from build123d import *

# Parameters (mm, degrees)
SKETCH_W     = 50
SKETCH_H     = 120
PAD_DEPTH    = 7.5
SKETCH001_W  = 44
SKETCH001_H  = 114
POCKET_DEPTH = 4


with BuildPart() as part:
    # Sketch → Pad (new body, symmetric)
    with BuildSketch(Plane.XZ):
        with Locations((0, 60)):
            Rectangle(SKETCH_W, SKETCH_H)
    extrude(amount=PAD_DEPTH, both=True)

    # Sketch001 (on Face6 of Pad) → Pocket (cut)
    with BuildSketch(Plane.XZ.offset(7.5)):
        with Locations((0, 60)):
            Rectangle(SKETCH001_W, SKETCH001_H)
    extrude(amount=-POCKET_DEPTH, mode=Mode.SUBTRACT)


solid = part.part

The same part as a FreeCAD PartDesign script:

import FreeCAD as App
import Part
import Sketcher

V = App.Vector

doc = App.newDocument("Part")
params = doc.addObject("Spreadsheet::Sheet", "Params")
for row, (alias, value) in enumerate([
    ("sketch1_width", "50 mm"),
    ("sketch1_height", "120 mm"),
    ("pad1_length", "15 mm"),
    ("sketch2_width", "44 mm"),
    ("sketch2_height", "114 mm"),
    ("pocket1_length", "4 mm"),
], start=1):
    params.set(f"A{row}", alias)
    params.set(f"B{row}", "=" + value)
    params.setAlias(f"B{row}", alias)

body = doc.addObject("PartDesign::Body", "Body")

# Sketch on XZ plane
sketch1 = doc.addObject("Sketcher::SketchObject", "Sketch")
body.addObject(sketch1)
sketch1.AttachmentSupport = (doc.XZ_Plane, [""])
sketch1.MapMode = "FlatFace"
sketch1.addGeometry(Part.LineSegment(V(-25, 120, 0), V(-25, 0, 0)), False)
sketch1.addGeometry(Part.LineSegment(V(-25, 0, 0), V(25, 0, 0)), False)
sketch1.addGeometry(Part.LineSegment(V(25, 0, 0), V(25, 120, 0)), False)
sketch1.addGeometry(Part.LineSegment(V(25, 120, 0), V(-25, 120, 0)), False)
sketch1.addConstraint(Sketcher.Constraint("Coincident", 0, 2, 1, 1))
sketch1.addConstraint(Sketcher.Constraint("Coincident", 1, 2, 2, 1))
sketch1.addConstraint(Sketcher.Constraint("Coincident", 2, 2, 3, 1))
sketch1.addConstraint(Sketcher.Constraint("Coincident", 3, 2, 0, 1))
sketch1.addConstraint(Sketcher.Constraint("Vertical", 0))
sketch1.addConstraint(Sketcher.Constraint("Horizontal", 1))
sketch1.addConstraint(Sketcher.Constraint("Vertical", 2))
sketch1.addConstraint(Sketcher.Constraint("Horizontal", 3))
sketch1.addConstraint(Sketcher.Constraint("Symmetric", 0, 2, 1, 2, -1, 1))
sketch1.addConstraint(Sketcher.Constraint("DistanceX", 1, 1, 1, 2, 50.0))
sketch1.addConstraint(Sketcher.Constraint("DistanceY", 0, 2, 0, 1, 120.0))
sketch1.setExpression("Constraints[9]", "Params.sketch1_width")
sketch1.setExpression("Constraints[10]", "Params.sketch1_height")
pad1 = doc.addObject("PartDesign::Pad", "Pad")
body.addObject(pad1)
pad1.Profile = sketch1
pad1.setExpression("Length", "Params.pad1_length")
pad1.Midplane = True

# Sketch on XZ plane
sketch2 = doc.addObject("Sketcher::SketchObject", "Sketch001")
body.addObject(sketch2)
sketch2.AttachmentSupport = (doc.XZ_Plane, [""])
sketch2.MapMode = "FlatFace"
sketch2.AttachmentOffset = App.Placement(V(0, 0, 7.5), App.Rotation())
sketch2.addGeometry(Part.LineSegment(V(-22, 117, 0), V(-22, 3, 0)), False)
sketch2.addGeometry(Part.LineSegment(V(-22, 3, 0), V(22, 3, 0)), False)
sketch2.addGeometry(Part.LineSegment(V(22, 3, 0), V(22, 117, 0)), False)
sketch2.addGeometry(Part.LineSegment(V(22, 117, 0), V(-22, 117, 0)), False)
sketch2.addConstraint(Sketcher.Constraint("Coincident", 0, 2, 1, 1))
sketch2.addConstraint(Sketcher.Constraint("Coincident", 1, 2, 2, 1))
sketch2.addConstraint(Sketcher.Constraint("Coincident", 2, 2, 3, 1))
sketch2.addConstraint(Sketcher.Constraint("Coincident", 3, 2, 0, 1))
sketch2.addConstraint(Sketcher.Constraint("Vertical", 0))
sketch2.addConstraint(Sketcher.Constraint("Horizontal", 1))
sketch2.addConstraint(Sketcher.Constraint("Vertical", 2))
sketch2.addConstraint(Sketcher.Constraint("Horizontal", 3))
sketch2.addConstraint(Sketcher.Constraint("DistanceX", 1, 1, 1, 2, 44.0))
sketch2.addConstraint(Sketcher.Constraint("DistanceY", 0, 2, 0, 1, 114.0))
sketch2.addConstraint(Sketcher.Constraint("DistanceX", 0, 2, -1, 1, 22.0))
sketch2.addConstraint(Sketcher.Constraint("DistanceY", -1, 1, 0, 2, 3.0))
sketch2.setExpression("Constraints[8]", "Params.sketch2_width")
sketch2.setExpression("Constraints[9]", "Params.sketch2_height")
pocket1 = doc.addObject("PartDesign::Pocket", "Pocket")
body.addObject(pocket1)
pocket1.Profile = sketch2
pocket1.setExpression("Length", "Params.pocket1_length")

doc.recompute()
